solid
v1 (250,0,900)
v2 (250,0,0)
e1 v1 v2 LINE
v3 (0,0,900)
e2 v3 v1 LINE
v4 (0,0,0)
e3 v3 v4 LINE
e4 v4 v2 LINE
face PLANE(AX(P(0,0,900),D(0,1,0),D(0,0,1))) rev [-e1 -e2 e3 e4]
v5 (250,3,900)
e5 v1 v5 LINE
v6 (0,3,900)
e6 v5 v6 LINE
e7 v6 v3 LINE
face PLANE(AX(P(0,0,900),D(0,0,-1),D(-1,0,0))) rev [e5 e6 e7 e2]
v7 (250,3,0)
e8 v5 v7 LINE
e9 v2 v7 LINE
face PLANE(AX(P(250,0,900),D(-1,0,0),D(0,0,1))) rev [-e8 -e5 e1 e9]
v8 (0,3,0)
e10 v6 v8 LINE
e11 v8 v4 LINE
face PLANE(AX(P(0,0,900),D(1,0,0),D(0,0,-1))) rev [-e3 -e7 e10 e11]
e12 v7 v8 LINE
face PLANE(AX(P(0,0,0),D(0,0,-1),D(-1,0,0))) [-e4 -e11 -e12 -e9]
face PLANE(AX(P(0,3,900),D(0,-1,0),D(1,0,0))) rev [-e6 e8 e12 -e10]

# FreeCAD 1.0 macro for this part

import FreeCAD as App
import Part
import Sketcher
from FreeCAD import Vector
Q = App.Units.Quantity

doc = App.newDocument("Part")
params = doc.addObject("Spreadsheet::Sheet", "Params")
for row, (alias, value) in enumerate([
    ("sketch1_width", "250 mm"),
    ("sketch1_height", "3 mm"),
    ("pad1_length", "900 mm"),
], start=1):
    params.set(f"A{row}", alias)
    params.set(f"B{row}", "=" + value)
    params.setAlias(f"B{row}", alias)

body = doc.addObject("PartDesign::Body", "Body")

sketch1 = body.newObject("Sketcher::SketchObject", "Sketch")
sketch1.AttachmentSupport = (doc.getObject("XY_Plane"), [""])
sketch1.MapMode = "FlatFace"
sketch1.addGeometry(Part.LineSegment(Vector(0, 3, 0), Vector(0, 0, 0)), False)
sketch1.addGeometry(Part.LineSegment(Vector(0, 0, 0), Vector(250, 0, 0)), False)
sketch1.addGeometry(Part.LineSegment(Vector(250, 0, 0), Vector(250, 3, 0)), False)
sketch1.addGeometry(Part.LineSegment(Vector(250, 3, 0), Vector(0, 3, 0)), False)
sketch1.addConstraint(Sketcher.Constraint("Coincident", 0, 2, 1, 1))
sketch1.addConstraint(Sketcher.Constraint("Coincident", 1, 2, 2, 1))
sketch1.addConstraint(Sketcher.Constraint("Coincident", 2, 2, 3, 1))
sketch1.addConstraint(Sketcher.Constraint("Coincident", 3, 2, 0, 1))
sketch1.addConstraint(Sketcher.Constraint("Vertical", 0))
sketch1.addConstraint(Sketcher.Constraint("Horizontal", 1))
sketch1.addConstraint(Sketcher.Constraint("Vertical", 2))
sketch1.addConstraint(Sketcher.Constraint("Horizontal", 3))
sketch1.addConstraint(Sketcher.Constraint("Coincident", 0, 2, -1, 1))
sketch1.addConstraint(Sketcher.Constraint("DistanceX", 1, 1, 1, 2, Q("250 mm")))
sketch1.addConstraint(Sketcher.Constraint("DistanceY", 0, 2, 0, 1, Q("3 mm")))
sketch1.setExpression("Constraints[9]", "Params.sketch1_width")
sketch1.setExpression("Constraints[10]", "Params.sketch1_height")
pad1 = body.newObject("PartDesign::Pad", "Pad")
pad1.Profile = sketch1
pad1.setExpression("Length", "Params.pad1_length")

doc.recompute()
